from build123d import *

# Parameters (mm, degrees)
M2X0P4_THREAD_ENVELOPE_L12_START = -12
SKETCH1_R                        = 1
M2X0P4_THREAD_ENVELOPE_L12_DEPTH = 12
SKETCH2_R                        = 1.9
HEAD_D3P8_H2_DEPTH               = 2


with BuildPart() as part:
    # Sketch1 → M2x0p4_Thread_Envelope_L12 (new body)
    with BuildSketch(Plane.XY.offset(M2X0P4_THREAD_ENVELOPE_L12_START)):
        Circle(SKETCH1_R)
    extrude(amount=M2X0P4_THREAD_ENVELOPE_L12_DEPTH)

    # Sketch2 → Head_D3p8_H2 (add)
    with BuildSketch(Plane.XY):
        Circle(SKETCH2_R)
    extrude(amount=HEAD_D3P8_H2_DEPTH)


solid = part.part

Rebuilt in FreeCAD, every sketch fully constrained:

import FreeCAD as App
import Part
import Sketcher

doc = App.newDocument("Part")
params = doc.addObject("Spreadsheet::Sheet", "Params")
for row, (alias, value) in enumerate([
    ("sketch1_diameter", "2 mm"),
    ("pad1_length", "12 mm"),
    ("sketch2_diameter", "3.8 mm"),
    ("pad2_length", "2 mm"),
], start=1):
    params.set(f"A{row}", alias)
    params.set(f"B{row}", "=" + value)
    params.setAlias(f"B{row}", alias)

body = doc.addObject("PartDesign::Body", "Body")

# Sketch on XY plane
sketch1 = body.newObject("Sketcher::SketchObject", "Sketch")
sketch1.AttachmentSupport = (doc.getObject("XY_Plane"), [""])
sketch1.MapMode = "FlatFace"
sketch1.AttachmentOffset = App.Placement(App.Vector(0, 0, -12), App.Rotation())
sketch1.addGeometry(Part.Circle(App.Vector(0, 0, 0), App.Vector(0, 0, 1), 1), False)
sketch1.addConstraint(Sketcher.Constraint("Coincident", 0, 3, -1, 1))
sketch1.addConstraint(Sketcher.Constraint("Diameter", 0, 2.0))
sketch1.setExpression("Constraints[1]", "Params.sketch1_diameter")
pad1 = body.newObject("PartDesign::Pad", "Pad")
pad1.Profile = sketch1
pad1.setExpression("Length", "Params.pad1_length")

# Sketch on XY plane
sketch2 = body.newObject("Sketcher::SketchObject", "Sketch001")
sketch2.AttachmentSupport = (doc.getObject("XY_Plane"), [""])
sketch2.MapMode = "FlatFace"
sketch2.addGeometry(Part.Circle(App.Vector(0, 0, 0), App.Vector(0, 0, 1), 1.9), False)
sketch2.addConstraint(Sketcher.Constraint("Coincident", 0, 3, -1, 1))
sketch2.addConstraint(Sketcher.Constraint("Diameter", 0, 3.8))
sketch2.setExpression("Constraints[1]", "Params.sketch2_diameter")
pad2 = body.newObject("PartDesign::Pad", "Pad001")
pad2.Profile = sketch2
pad2.setExpression("Length", "Params.pad2_length")

doc.recompute()
